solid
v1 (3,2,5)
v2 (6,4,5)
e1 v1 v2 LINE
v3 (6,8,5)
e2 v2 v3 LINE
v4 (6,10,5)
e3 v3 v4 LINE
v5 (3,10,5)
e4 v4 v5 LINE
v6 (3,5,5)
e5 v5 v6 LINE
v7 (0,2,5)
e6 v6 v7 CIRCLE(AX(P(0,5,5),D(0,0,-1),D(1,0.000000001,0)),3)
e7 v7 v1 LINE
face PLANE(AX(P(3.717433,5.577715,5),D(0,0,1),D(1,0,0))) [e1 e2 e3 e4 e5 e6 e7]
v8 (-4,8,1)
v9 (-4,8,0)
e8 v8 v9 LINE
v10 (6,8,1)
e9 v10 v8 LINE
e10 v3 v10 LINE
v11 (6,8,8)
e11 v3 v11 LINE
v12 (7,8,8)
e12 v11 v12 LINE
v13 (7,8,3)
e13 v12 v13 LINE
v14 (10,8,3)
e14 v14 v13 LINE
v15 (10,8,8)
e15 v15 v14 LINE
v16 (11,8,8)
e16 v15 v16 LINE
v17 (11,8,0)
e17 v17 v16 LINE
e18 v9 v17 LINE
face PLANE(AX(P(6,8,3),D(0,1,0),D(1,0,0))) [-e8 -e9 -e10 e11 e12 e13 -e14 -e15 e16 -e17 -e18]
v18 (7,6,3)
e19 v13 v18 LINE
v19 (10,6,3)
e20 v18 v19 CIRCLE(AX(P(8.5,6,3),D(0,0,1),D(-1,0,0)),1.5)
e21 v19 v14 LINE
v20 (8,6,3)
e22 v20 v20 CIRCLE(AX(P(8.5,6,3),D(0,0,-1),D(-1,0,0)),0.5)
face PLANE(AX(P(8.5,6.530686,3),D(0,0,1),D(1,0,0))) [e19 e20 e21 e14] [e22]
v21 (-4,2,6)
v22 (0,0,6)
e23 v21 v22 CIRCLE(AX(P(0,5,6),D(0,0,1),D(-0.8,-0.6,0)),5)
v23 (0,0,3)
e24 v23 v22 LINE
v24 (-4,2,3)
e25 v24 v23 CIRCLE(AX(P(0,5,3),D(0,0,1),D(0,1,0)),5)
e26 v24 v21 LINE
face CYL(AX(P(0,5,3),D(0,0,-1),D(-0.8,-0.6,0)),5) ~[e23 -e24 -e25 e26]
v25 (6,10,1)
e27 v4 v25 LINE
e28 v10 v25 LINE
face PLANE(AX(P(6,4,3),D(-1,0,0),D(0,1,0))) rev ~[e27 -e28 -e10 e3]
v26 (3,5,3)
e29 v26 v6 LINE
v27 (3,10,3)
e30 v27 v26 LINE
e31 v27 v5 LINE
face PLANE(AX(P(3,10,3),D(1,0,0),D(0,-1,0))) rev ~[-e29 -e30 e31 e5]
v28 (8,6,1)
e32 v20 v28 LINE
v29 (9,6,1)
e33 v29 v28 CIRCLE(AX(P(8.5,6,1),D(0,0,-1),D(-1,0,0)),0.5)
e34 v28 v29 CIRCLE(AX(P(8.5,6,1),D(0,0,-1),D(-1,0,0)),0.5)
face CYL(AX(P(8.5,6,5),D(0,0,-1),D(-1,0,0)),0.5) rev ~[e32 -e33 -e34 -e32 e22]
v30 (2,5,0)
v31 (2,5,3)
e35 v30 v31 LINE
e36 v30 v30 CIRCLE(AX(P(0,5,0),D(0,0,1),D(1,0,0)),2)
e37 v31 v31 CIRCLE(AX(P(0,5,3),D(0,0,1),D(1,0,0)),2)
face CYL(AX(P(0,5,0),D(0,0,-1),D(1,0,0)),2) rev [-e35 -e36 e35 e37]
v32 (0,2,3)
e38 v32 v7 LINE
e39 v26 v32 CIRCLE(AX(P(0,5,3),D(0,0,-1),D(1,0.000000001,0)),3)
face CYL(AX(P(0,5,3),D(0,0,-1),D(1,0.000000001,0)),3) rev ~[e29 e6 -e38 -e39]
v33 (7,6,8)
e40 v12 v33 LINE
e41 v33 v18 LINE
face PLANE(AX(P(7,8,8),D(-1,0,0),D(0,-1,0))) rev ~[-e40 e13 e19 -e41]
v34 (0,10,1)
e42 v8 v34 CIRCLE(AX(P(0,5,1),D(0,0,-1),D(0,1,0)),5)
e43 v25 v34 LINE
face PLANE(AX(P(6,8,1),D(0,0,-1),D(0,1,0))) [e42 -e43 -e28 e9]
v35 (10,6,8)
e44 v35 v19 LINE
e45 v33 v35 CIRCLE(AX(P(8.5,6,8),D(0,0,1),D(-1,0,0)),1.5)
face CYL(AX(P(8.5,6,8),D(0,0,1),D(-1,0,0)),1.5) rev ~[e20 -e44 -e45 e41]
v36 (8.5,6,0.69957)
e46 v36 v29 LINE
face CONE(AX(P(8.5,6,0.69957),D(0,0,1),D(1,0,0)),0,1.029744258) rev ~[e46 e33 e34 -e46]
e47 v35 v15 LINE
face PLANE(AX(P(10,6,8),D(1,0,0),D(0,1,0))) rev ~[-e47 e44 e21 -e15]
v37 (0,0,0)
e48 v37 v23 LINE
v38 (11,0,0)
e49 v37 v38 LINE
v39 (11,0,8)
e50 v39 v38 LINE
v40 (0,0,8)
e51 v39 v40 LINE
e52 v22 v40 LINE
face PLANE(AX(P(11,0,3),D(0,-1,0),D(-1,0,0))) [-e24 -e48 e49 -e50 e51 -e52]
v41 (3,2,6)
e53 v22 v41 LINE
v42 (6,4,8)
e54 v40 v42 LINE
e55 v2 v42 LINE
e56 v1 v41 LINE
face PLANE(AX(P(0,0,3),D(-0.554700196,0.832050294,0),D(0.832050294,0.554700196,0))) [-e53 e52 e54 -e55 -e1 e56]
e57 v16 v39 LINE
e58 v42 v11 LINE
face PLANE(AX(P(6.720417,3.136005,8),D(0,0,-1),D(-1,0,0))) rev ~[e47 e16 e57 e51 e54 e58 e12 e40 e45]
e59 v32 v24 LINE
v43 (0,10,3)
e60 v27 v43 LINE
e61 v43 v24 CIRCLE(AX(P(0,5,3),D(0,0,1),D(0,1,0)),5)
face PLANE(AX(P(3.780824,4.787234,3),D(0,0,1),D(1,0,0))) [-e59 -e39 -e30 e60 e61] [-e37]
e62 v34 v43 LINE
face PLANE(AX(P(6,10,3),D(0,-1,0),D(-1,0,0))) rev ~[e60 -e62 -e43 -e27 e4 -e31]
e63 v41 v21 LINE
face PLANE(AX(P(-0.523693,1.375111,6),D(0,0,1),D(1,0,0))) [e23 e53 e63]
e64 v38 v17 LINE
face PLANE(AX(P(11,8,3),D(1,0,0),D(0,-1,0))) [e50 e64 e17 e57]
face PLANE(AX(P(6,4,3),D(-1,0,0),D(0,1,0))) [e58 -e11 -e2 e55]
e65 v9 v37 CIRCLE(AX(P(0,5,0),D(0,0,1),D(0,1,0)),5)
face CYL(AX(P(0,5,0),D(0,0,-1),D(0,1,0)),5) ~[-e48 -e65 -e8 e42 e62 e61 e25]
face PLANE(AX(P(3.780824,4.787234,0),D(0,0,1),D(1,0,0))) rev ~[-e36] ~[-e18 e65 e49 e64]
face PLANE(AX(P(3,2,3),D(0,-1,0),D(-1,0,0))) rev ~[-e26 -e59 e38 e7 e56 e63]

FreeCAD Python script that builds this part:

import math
import FreeCAD as App
import Part
import Sketcher
Q = App.Units.Quantity

doc = App.newDocument("Part")
params = doc.addObject("Spreadsheet::Sheet", "Params")
for row, (alias, value) in enumerate([
    ("sketch1_diameter", "4 mm"),
    ("sketch1_radius", "5 mm"),
    ("sketch1_width", "11 mm"),
    ("sketch1_width2", "5 mm"),
    ("sketch1_height", "8 mm"),
    ("pad1_length", "3 mm"),
    ("sketch2_width", "2 mm"),
    ("sketch2_height", "1 mm"),
    ("pocket1_length", "15 mm"),
    ("sketch3_diameter", "1 mm"),
    ("sketch3_width", "5 mm"),
    ("sketch3_width2", "11 mm"),
    ("sketch3_height", "8 mm"),
    ("sketch3_height2", "4 mm"),
    ("pad2_length", "5 mm"),
    ("sketch4_radius", "1.5 mm"),
    ("sketch4_height", "2 mm"),
    ("pocket2_length", "5 mm"),
    ("sketch5_radius", "5 mm"),
    ("sketch5_width", "7 mm"),
    ("pad3_length", "3 mm"),
    ("sketch6_radius", "3 mm"),
    ("sketch6_height", "5 mm"),
    ("sketch6_height2", "6 mm"),
    ("pad4_length", "2 mm"),
    ("sketch7_diameter", "1 mm"),
    ("hole_diameter", "1 mm"),
    ("hole_depth", "2 mm"),
], start=1):
    params.set(f"A{row}", alias)
    params.set(f"B{row}", "=" + value)
    params.setAlias(f"B{row}", alias)

body = doc.addObject("PartDesign::Body", "Body")

sketch1 = body.newObject("Sketcher::SketchObject", "Sketch")
sketch1.AttachmentSupport = (doc.getObject("XY_Plane"), [""])
sketch1.MapMode = "FlatFace"
sketch1.addGeometry(Part.LineSegment(App.Vector(0, 0, 0), App.Vector(11, 0, 0)), False)
sketch1.addGeometry(Part.LineSegment(App.Vector(11, 0, 0), App.Vector(11, 8, 0)), False)
sketch1.addGeometry(Part.LineSegment(App.Vector(11, 8, 0), App.Vector(6, 8, 0)), False)
sketch1.addGeometry(Part.LineSegment(App.Vector(6, 8, 0), App.Vector(6, 10, 0)), False)
sketch1.addGeometry(Part.LineSegment(App.Vector(6, 10, 0), App.Vector(0, 10, 0)), False)
sketch1.addGeometry(Part.ArcOfCircle(Part.Circle(App.Vector(0, 5, 0), App.Vector(0, 0, 1), 5), math.radians(90), math.radians(270)), False)
sketch1.addGeometry(Part.Circle(App.Vector(0, 5, 0), App.Vector(0, 0, 1), 2), False)
sketch1.addConstraint(Sketcher.Constraint("Coincident", 0, 2, 1, 1))
sketch1.addConstraint(Sketcher.Constraint("Coincident", 1, 2, 2, 1))
sketch1.addConstraint(Sketcher.Constraint("Coincident", 2, 2, 3, 1))
sketch1.addConstraint(Sketcher.Constraint("Coincident", 3, 2, 4, 1))
sketch1.addConstraint(Sketcher.Constraint("Tangent", 4, 2, 5, 1))
sketch1.addConstraint(Sketcher.Constraint("Tangent", 5, 2, 0, 1))
sketch1.addConstraint(Sketcher.Constraint("Horizontal", 0))
sketch1.addConstraint(Sketcher.Constraint("Vertical", 1))
sketch1.addConstraint(Sketcher.Constraint("Horizontal", 2))
sketch1.addConstraint(Sketcher.Constraint("Vertical", 3))
sketch1.addConstraint(Sketcher.Constraint("Horizontal", 4))
sketch1.addConstraint(Sketcher.Constraint("Coincident", 5, 2, -1, 1))
sketch1.addConstraint(Sketcher.Constraint("Coincident", 6, 3, 5, 3))
sketch1.addConstraint(Sketcher.Constraint("Diameter", 6, Q("4 mm")))
sketch1.addConstraint(Sketcher.Constraint("Radius", 5, Q("5 mm")))
sketch1.addConstraint(Sketcher.Constraint("DistanceX", 0, 1, 0, 2, Q("11 mm")))
sketch1.addConstraint(Sketcher.Constraint("DistanceX", 2, 2, 2, 1, Q("5 mm")))
sketch1.addConstraint(Sketcher.Constraint("DistanceY", 1, 1, 1, 2, Q("8 mm")))
sketch1.setExpression("Constraints[13]", "Params.sketch1_diameter")
sketch1.setExpression("Constraints[14]", "Params.sketch1_radius")
sketch1.setExpression("Constraints[15]", "Params.sketch1_width")
sketch1.setExpression("Constraints[16]", "Params.sketch1_width2")
sketch1.setExpression("Constraints[17]", "Params.sketch1_height")
pad1 = body.newObject("PartDesign::Pad", "Pad")
pad1.Profile = sketch1
pad1.setExpression("Length", "Params.pad1_length")

sketch2 = body.newObject("Sketcher::SketchObject", "Sketch001")
sketch2.AttachmentSupport = (doc.getObject("YZ_Plane"), [""])
sketch2.MapMode = "FlatFace"
sketch2.AttachmentOffset = App.Placement(App.Vector(0, 0, 6), App.Rotation())
sketch2.addGeometry(Part.LineSegment(App.Vector(10, 1, 0), App.Vector(8, 1, 0)), False)
sketch2.addGeometry(Part.LineSegment(App.Vector(8, 1, 0), App.Vector(8, 0, 0)), False)
sketch2.addGeometry(Part.LineSegment(App.Vector(8, 0, 0), App.Vector(10, 0, 0)), False)
sketch2.addGeometry(Part.LineSegment(App.Vector(10, 0, 0), App.Vector(10, 1, 0)), False)
sketch2.addConstraint(Sketcher.Constraint("Coincident", 0, 2, 1, 1))
sketch2.addConstraint(Sketcher.Constraint("Coincident", 1, 2, 2, 1))
sketch2.addConstraint(Sketcher.Constraint("Coincident", 2, 2, 3, 1))
sketch2.addConstraint(Sketcher.Constraint("Coincident", 3, 2, 0, 1))
sketch2.addConstraint(Sketcher.Constraint("Horizontal", 0))
sketch2.addConstraint(Sketcher.Constraint("Vertical", 1))
sketch2.addConstraint(Sketcher.Constraint("Horizontal", 2))
sketch2.addConstraint(Sketcher.Constraint("Vertical", 3))
sketch2.addConstraint(Sketcher.Constraint("PointOnObject", 1, 2, -1))
sketch2.addConstraint(Sketcher.Constraint("DistanceX", 0, 2, 0, 1, Q("2 mm")))
sketch2.addConstraint(Sketcher.Constraint("DistanceY", 1, 2, 1, 1, Q("1 mm")))
sketch2.addConstraint(Sketcher.Constraint("DistanceX", -1, 1, 0, 2, Q("8 mm")))
sketch2.setExpression("Constraints[9]", "Params.sketch2_width")
sketch2.setExpression("Constraints[10]", "Params.sketch2_height")
pocket1 = body.newObject("PartDesign::Pocket", "Pocket")
pocket1.Profile = sketch2
pocket1.setExpression("Length", "Params.pocket1_length")

sketch3 = body.newObject("Sketcher::SketchObject", "Sketch002")
sketch3.AttachmentSupport = (doc.getObject("XY_Plane"), [""])
sketch3.MapMode = "FlatFace"
sketch3.AttachmentOffset = App.Placement(App.Vector(0, 0, 3), App.Rotation())
sketch3.addGeometry(Part.LineSegment(App.Vector(11, 0, 0), App.Vector(11, 8, 0)), False)
sketch3.addGeometry(Part.LineSegment(App.Vector(11, 8, 0), App.Vector(6, 8, 0)), False)
sketch3.addGeometry(Part.LineSegment(App.Vector(6, 8, 0), App.Vector(6, 4, 0)), False)
sketch3.addGeometry(Part.LineSegment(App.Vector(6, 4, 0), App.Vector(0, 0, 0)), False)
sketch3.addGeometry(Part.LineSegment(App.Vector(0, 0, 0), App.Vector(11, 0, 0)), False)
sketch3.addGeometry(Part.Circle(App.Vector(8.5, 6, 0), App.Vector(0, 0, 1), 0.5), False)
sketch3.addConstraint(Sketcher.Constraint("Coincident", 0, 2, 1, 1))
sketch3.addConstraint(Sketcher.Constraint("Coincident", 1, 2, 2, 1))
sketch3.addConstraint(Sketcher.Constraint("Coincident", 2, 2, 3, 1))
sketch3.addConstraint(Sketcher.Constraint("Coincident", 3, 2, 4, 1))
sketch3.addConstraint(Sketcher.Constraint("Coincident", 4, 2, 0, 1))
sketch3.addConstraint(Sketcher.Constraint("Vertical", 0))
sketch3.addConstraint(Sketcher.Constraint("Horizontal", 1))
sketch3.addConstraint(Sketcher.Constraint("Vertical", 2))
sketch3.addConstraint(Sketcher.Constraint("Horizontal", 4))
sketch3.addConstraint(Sketcher.Constraint("Coincident", 3, 2, -1, 1))
sketch3.addConstraint(Sketcher.Constraint("Diameter", 5, Q("1 mm")))
sketch3.addConstraint(Sketcher.Constraint("DistanceX", 1, 2, 1, 1, Q("5 mm")))
sketch3.addConstraint(Sketcher.Constraint("DistanceX", 4, 1, 4, 2, Q("11 mm")))
sketch3.addConstraint(Sketcher.Constraint("DistanceY", 0, 1, 0, 2, Q("8 mm")))
sketch3.addConstraint(Sketcher.Constraint("DistanceY", 2, 2, 2, 1, Q("4 mm")))
sketch3.addConstraint(Sketcher.Constraint("DistanceY", -1, 1, 5, 3, Q("6 mm")))
sketch3.addConstraint(Sketcher.Constraint("DistanceX", -1, 1, 5, 3, Q("8.5 mm")))
sketch3.setExpression("Constraints[10]", "Params.sketch3_diameter")
sketch3.setExpression("Constraints[11]", "Params.sketch3_width")
sketch3.setExpression("Constraints[12]", "Params.sketch3_width2")
sketch3.setExpression("Constraints[13]", "Params.sketch3_height")
sketch3.setExpression("Constraints[14]", "Params.sketch3_height2")
pad2 = body.newObject("PartDesign::Pad", "Pad001")
pad2.Profile = sketch3
pad2.setExpression("Length", "Params.pad2_length")

sketch4 = body.newObject("Sketcher::SketchObject", "Sketch003")
sketch4.AttachmentSupport = (doc.getObject("XY_Plane"), [""])
sketch4.MapMode = "FlatFace"
sketch4.AttachmentOffset = App.Placement(App.Vector(0, 0, 8), App.Rotation())
sketch4.addGeometry(Part.LineSegment(App.Vector(7, 8, 0), App.Vector(7, 6, 0)), False)
sketch4.addGeometry(Part.ArcOfCircle(Part.Circle(App.Vector(8.5, 6, 0), App.Vector(0, 0, 1), 1.5), math.radians(180), math.radians(360)), False)
sketch4.addGeometry(Part.LineSegment(App.Vector(10, 6, 0), App.Vector(10, 8, 0)), False)
sketch4.addGeometry(Part.LineSegment(App.Vector(10, 8, 0), App.Vector(7, 8, 0)), False)
sketch4.addConstraint(Sketcher.Constraint("Tangent", 0, 2, 1, 1))
sketch4.addConstraint(Sketcher.Constraint("Tangent", 1, 2, 2, 1))
sketch4.addConstraint(Sketcher.Constraint("Coincident", 2, 2, 3, 1))
sketch4.addConstraint(Sketcher.Constraint("Coincident", 3, 2, 0, 1))
sketch4.addConstraint(Sketcher.Constraint("Vertical", 0))
sketch4.addConstraint(Sketcher.Constraint("Vertical", 2))
sketch4.addConstraint(Sketcher.Constraint("Horizontal", 3))
sketch4.addConstraint(Sketcher.Constraint("Radius", 1, Q("1.5 mm")))
sketch4.addConstraint(Sketcher.Constraint("DistanceY", 0, 2, 0, 1, Q("2 mm")))
sketch4.addConstraint(Sketcher.Constraint("DistanceY", -1, 1, 1, 3, Q("6 mm")))
sketch4.addConstraint(Sketcher.Constraint("DistanceX", -1, 1, 0, 2, Q("7 mm")))
sketch4.setExpression("Constraints[7]", "Params.sketch4_radius")
sketch4.setExpression("Constraints[8]", "Params.sketch4_height")
pocket2 = body.newObject("PartDesign::Pocket", "Pocket001")
pocket2.Profile = sketch4
pocket2.setExpression("Length", "Params.pocket2_length")

sketch5 = body.newObject("Sketcher::SketchObject", "Sketch004")
sketch5.AttachmentSupport = (doc.getObject("XY_Plane"), [""])
sketch5.MapMode = "FlatFace"
sketch5.AttachmentOffset = App.Placement(App.Vector(0, 0, 3), App.Rotation())
sketch5.addGeometry(Part.LineSegment(App.Vector(3, 2, 0), App.Vector(-4, 2, 0)), False)
sketch5.addGeometry(Part.ArcOfCircle(Part.Circle(App.Vector(0, 5, 0), App.Vector(0, 0, 1), 5), math.radians(-143.130102), math.radians(-90)), False)
sketch5.addGeometry(Part.LineSegment(App.Vector(0, 0, 0), App.Vector(3, 2, 0)), False)
sketch5.addConstraint(Sketcher.Constraint("Coincident", 0, 2, 1, 1))
sketch5.addConstraint(Sketcher.Constraint("Coincident", 1, 2, 2, 1))
sketch5.addConstraint(Sketcher.Constraint("Coincident", 2, 2, 0, 1))
sketch5.addConstraint(Sketcher.Constraint("Horizontal", 0))
sketch5.addConstraint(Sketcher.Constraint("Coincident", 1, 2, -1, 1))
sketch5.addConstraint(Sketcher.Constraint("PointOnObject", 1, 3, -2))
sketch5.addConstraint(Sketcher.Constraint("Radius", 1, Q("5 mm")))
sketch5.addConstraint(Sketcher.Constraint("DistanceX", 0, 2, 0, 1, Q("7 mm")))
sketch5.addConstraint(Sketcher.Constraint("DistanceX", 0, 2, -1, 1, Q("4 mm")))
sketch5.setExpression("Constraints[6]", "Params.sketch5_radius")
sketch5.setExpression("Constraints[7]", "Params.sketch5_width")
pad3 = body.newObject("PartDesign::Pad", "Pad002")
pad3.Profile = sketch5
pad3.setExpression("Length", "Params.pad3_length")

sketch6 = body.newObject("Sketcher::SketchObject", "Sketch005")
sketch6.AttachmentSupport = (doc.getObject("XY_Plane"), [""])
sketch6.MapMode = "FlatFace"
sketch6.AttachmentOffset = App.Placement(App.Vector(0, 0, 3), App.Rotation())
sketch6.addGeometry(Part.LineSegment(App.Vector(3, 10, 0), App.Vector(3, 5, 0)), False)
sketch6.addGeometry(Part.ArcOfCircle(Part.Circle(App.Vector(0, 5, 0), App.Vector(0, 0, 1), 3), math.radians(-90), math.radians(0)), False)
sketch6.addGeometry(Part.LineSegment(App.Vector(0, 2, 0), App.Vector(3, 2, 0)), False)
sketch6.addGeometry(Part.LineSegment(App.Vector(3, 2, 0), App.Vector(6, 4, 0)), False)
sketch6.addGeometry(Part.LineSegment(App.Vector(6, 4, 0), App.Vector(6, 10, 0)), False)
sketch6.addGeometry(Part.LineSegment(App.Vector(6, 10, 0), App.Vector(3, 10, 0)), False)
sketch6.addConstraint(Sketcher.Constraint("Tangent", 0, 2, 1, 2))
sketch6.addConstraint(Sketcher.Constraint("Tangent", 1, 1, 2, 1))
sketch6.addConstraint(Sketcher.Constraint("Coincident", 2, 2, 3, 1))
sketch6.addConstraint(Sketcher.Constraint("Coincident", 3, 2, 4, 1))
sketch6.addConstraint(Sketcher.Constraint("Coincident", 4, 2, 5, 1))
sketch6.addConstraint(Sketcher.Constraint("Coincident", 5, 2, 0, 1))
sketch6.addConstraint(Sketcher.Constraint("Vertical", 0))
sketch6.addConstraint(Sketcher.Constraint("Horizontal", 2))
sketch6.addConstraint(Sketcher.Constraint("Vertical", 4))
sketch6.addConstraint(Sketcher.Constraint("Horizontal", 5))
sketch6.addConstraint(Sketcher.Constraint("PointOnObject", 1, 3, -2))
sketch6.addConstraint(Sketcher.Constraint("Vertical", 0, 2, 2, 2))
sketch6.addConstraint(Sketcher.Constraint("Equal", 2, 5))
sketch6.addConstraint(Sketcher.Constraint("Radius", 1, Q("3 mm")))
sketch6.addConstraint(Sketcher.Constraint("DistanceY", 0, 2, 0, 1, Q("5 mm")))
sketch6.addConstraint(Sketcher.Constraint("DistanceY", 4, 1, 4, 2, Q("6 mm")))
sketch6.addConstraint(Sketcher.Constraint("DistanceY", -1, 1, 1, 3, Q("5 mm")))
sketch6.setExpression("Constraints[13]", "Params.sketch6_radius")
sketch6.setExpression("Constraints[14]", "Params.sketch6_height")
sketch6.setExpression("Constraints[15]", "Params.sketch6_height2")
pad4 = body.newObject("PartDesign::Pad", "Pad003")
pad4.Profile = sketch6
pad4.setExpression("Length", "Params.pad4_length")

sketch7 = body.newObject("Sketcher::SketchObject", "Sketch006")
sketch7.AttachmentSupport = (doc.getObject("XY_Plane"), [""])
sketch7.MapMode = "FlatFace"
sketch7.AttachmentOffset = App.Placement(App.Vector(0, 0, 3), App.Rotation())
sketch7.addGeometry(Part.Circle(App.Vector(8.5, 6, 0), App.Vector(0, 0, 1), 0.5), False)
sketch7.addConstraint(Sketcher.Constraint("Diameter", 0, Q("1 mm")))
sketch7.addConstraint(Sketcher.Constraint("DistanceY", -1, 1, 0, 3, Q("6 mm")))
sketch7.addConstraint(Sketcher.Constraint("DistanceX", -1, 1, 0, 3, Q("8.5 mm")))
sketch7.setExpression("Constraints[0]", "Params.sketch7_diameter")
doc.recompute()
hole = body.newObject("PartDesign::Hole", "Hole")
hole.Profile = sketch7
hole.ThreadType = "None"
hole.setExpression("Diameter", "Params.hole_diameter")
hole.DepthType = "Dimension"
hole.setExpression("Depth", "Params.hole_depth")
hole.DrillPoint = "Angled"
hole.DrillPointAngle = 118

doc.recompute()
